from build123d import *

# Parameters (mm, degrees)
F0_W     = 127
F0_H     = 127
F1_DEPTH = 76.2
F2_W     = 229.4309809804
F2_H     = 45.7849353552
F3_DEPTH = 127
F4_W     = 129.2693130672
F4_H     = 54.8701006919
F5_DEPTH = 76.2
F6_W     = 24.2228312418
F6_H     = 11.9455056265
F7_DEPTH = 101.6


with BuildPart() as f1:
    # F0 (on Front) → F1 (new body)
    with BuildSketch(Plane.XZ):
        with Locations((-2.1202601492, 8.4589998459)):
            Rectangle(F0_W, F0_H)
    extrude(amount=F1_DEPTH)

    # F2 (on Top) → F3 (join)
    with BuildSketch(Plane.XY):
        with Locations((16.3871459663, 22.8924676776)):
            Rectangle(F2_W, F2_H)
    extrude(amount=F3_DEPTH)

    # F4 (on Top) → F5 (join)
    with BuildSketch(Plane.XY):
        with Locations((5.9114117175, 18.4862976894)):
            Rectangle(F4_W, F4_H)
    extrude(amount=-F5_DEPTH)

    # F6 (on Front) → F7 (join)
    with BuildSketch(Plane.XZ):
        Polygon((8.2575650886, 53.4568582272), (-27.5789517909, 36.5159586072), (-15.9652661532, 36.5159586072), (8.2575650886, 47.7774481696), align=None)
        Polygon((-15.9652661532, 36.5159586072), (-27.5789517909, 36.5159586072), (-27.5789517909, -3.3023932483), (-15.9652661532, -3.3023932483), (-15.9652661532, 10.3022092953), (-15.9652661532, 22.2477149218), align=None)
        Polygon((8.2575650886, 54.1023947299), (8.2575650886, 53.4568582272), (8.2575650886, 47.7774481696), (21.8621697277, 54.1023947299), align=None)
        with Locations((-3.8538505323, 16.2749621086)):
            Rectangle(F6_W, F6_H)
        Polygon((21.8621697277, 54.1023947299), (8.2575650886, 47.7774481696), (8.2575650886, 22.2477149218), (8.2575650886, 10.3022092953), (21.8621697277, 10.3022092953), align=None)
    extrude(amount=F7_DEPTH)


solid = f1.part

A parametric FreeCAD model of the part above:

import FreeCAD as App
import Part
import Sketcher
Q = App.Units.Quantity


def add_polygon(sketch, points):
    """Adds a closed chain of lines whose ends are joined by coincident constraints."""
    first, n = sketch.GeometryCount, len(points)
    for a, b in zip(points, points[1:] + points[:1]):
        sketch.addGeometry(Part.LineSegment(App.Vector(*a, 0), App.Vector(*b, 0)), False)
    for i in range(n):
        sketch.addConstraint(Sketcher.Constraint("Coincident", first + i, 2, first + (i + 1) % n, 1))

doc = App.newDocument("Part")
body = doc.addObject("PartDesign::Body", "Body")

# Sketch on XZ plane
sketch1 = body.newObject("Sketcher::SketchObject", "Sketch")
sketch1.AttachmentSupport = (doc.getObject("XZ_Plane"), [""])
sketch1.MapMode = "FlatFace"
add_polygon(sketch1, [(-66, 72), (-66, -55), (61, -55), (61, 72)])  # lines 0-3
sketch1.addConstraint(Sketcher.Constraint("Vertical", 0))
sketch1.addConstraint(Sketcher.Constraint("Horizontal", 1))
sketch1.addConstraint(Sketcher.Constraint("Vertical", 2))
sketch1.addConstraint(Sketcher.Constraint("Horizontal", 3))
sketch1.addConstraint(Sketcher.Constraint("Equal", 3, 0))
sketch1.addConstraint(Sketcher.Constraint("DistanceX", 1, 1, 1, 2, Q("5 in")))
sketch1.addConstraint(Sketcher.Constraint("DistanceY", 0, 2, -1, 1, 55.041))
sketch1.addConstraint(Sketcher.Constraint("DistanceX", 0, 2, -1, 1, 65.62026))
pad1 = body.newObject("PartDesign::Pad", "Pad")
pad1.Profile = sketch1
pad1.Length = Q("3 in")

# Sketch on XY plane
sketch2 = body.newObject("Sketcher::SketchObject", "Sketch001")
sketch2.AttachmentSupport = (doc.getObject("XY_Plane"), [""])
sketch2.MapMode = "FlatFace"
add_polygon(sketch2, [(-98, 46), (-98, 0), (131, 0), (131, 46)])  # lines 0-3
sketch2.addConstraint(Sketcher.Constraint("Vertical", 0))
sketch2.addConstraint(Sketcher.Constraint("Horizontal", 1))
sketch2.addConstraint(Sketcher.Constraint("Vertical", 2))
sketch2.addConstraint(Sketcher.Constraint("Horizontal", 3))
sketch2.addConstraint(Sketcher.Constraint("PointOnObject", 0, 2, -1))
sketch2.addConstraint(Sketcher.Constraint("DistanceX", 1, 1, 1, 2, 229.430981))
sketch2.addConstraint(Sketcher.Constraint("DistanceY", 0, 2, 0, 1, 45.784935))
sketch2.addConstraint(Sketcher.Constraint("DistanceX", 0, 2, -1, 1, 98.328345))
pad2 = body.newObject("PartDesign::Pad", "Pad001")
pad2.Profile = sketch2
pad2.Length = Q("5 in")

# Sketch on XY plane
sketch3 = body.newObject("Sketcher::SketchObject", "Sketch002")
sketch3.AttachmentSupport = (doc.getObject("XY_Plane"), [""])
sketch3.MapMode = "FlatFace"
add_polygon(sketch3, [(-59, 46), (-59, -9), (71, -9), (71, 46)])  # lines 0-3
sketch3.addConstraint(Sketcher.Constraint("Vertical", 0))
sketch3.addConstraint(Sketcher.Constraint("Horizontal", 1))
sketch3.addConstraint(Sketcher.Constraint("Vertical", 2))
sketch3.addConstraint(Sketcher.Constraint("Horizontal", 3))
sketch3.addConstraint(Sketcher.Constraint("DistanceY", 0, 2, 0, 1, 54.870101))
sketch3.addConstraint(Sketcher.Constraint("DistanceX", 1, 1, 1, 2, 129.269313))
sketch3.addConstraint(Sketcher.Constraint("DistanceX", -1, 1, 1, 2, 70.546068))
sketch3.addConstraint(Sketcher.Constraint("DistanceY", -1, 1, 2, 2, 45.921348))
pad3 = body.newObject("PartDesign::Pad", "Pad002")
pad3.Profile = sketch3
pad3.Length = Q("3 in")
pad3.Reversed = True

# Sketch on XZ plane
sketch4 = body.newObject("Sketcher::SketchObject", "Sketch003")
sketch4.AttachmentSupport = (doc.getObject("XZ_Plane"), [""])
sketch4.MapMode = "FlatFace"
add_polygon(sketch4, [(8.3, 53.5), (-27.6, 36.5), (-27.6, -3.3), (-16, -3.3), (-16, 10.3), (8.3, 10.3), (21.9, 10.3), (21.9, 54.1), (8.3, 54.1)])  # lines 0-8
add_polygon(sketch4, [(8.3, 22.2), (-16, 22.2), (-16, 36.5), (8.3, 47.8)])  # lines 9-12
sketch4.addConstraint(Sketcher.Constraint("Vertical", 1))
sketch4.addConstraint(Sketcher.Constraint("Horizontal", 2))
sketch4.addConstraint(Sketcher.Constraint("Vertical", 3))
sketch4.addConstraint(Sketcher.Constraint("Horizontal", 4))
sketch4.addConstraint(Sketcher.Constraint("Horizontal", 5))
sketch4.addConstraint(Sketcher.Constraint("Vertical", 6))
sketch4.addConstraint(Sketcher.Constraint("Horizontal", 7))
sketch4.addConstraint(Sketcher.Constraint("Vertical", 8))
sketch4.addConstraint(Sketcher.Constraint("Horizontal", 9))
sketch4.addConstraint(Sketcher.Constraint("Vertical", 10))
sketch4.addConstraint(Sketcher.Constraint("Vertical", 12))
sketch4.addConstraint(Sketcher.Constraint("Horizontal", 0, 2, 10, 2))
sketch4.addConstraint(Sketcher.Constraint("Vertical", 4, 2, 7, 2))
sketch4.addConstraint(Sketcher.Constraint("Vertical", 3, 2, 9, 2))
sketch4.addConstraint(Sketcher.Constraint("Vertical", 8, 2, 11, 2))
sketch4.addConstraint(Sketcher.Constraint("DistanceX", 4, 1, 4, 2, 24.222831))
sketch4.addConstraint(Sketcher.Constraint("DistanceY", 1, 2, 1, 1, 39.818352))
sketch4.addConstraint(Sketcher.Constraint("DistanceY", 0, 2, 8, 2, 16.9409))
sketch4.addConstraint(Sketcher.Constraint("Distance", 11, 26.712669))
sketch4.addConstraint(Sketcher.Constraint("DistanceX", 2, 1, 2, 2, 11.613686))
sketch4.addConstraint(Sketcher.Constraint("DistanceX", 5, 1, 5, 2, 13.604605))
sketch4.addConstraint(Sketcher.Constraint("DistanceY", 3, 1, 3, 2, 13.604603))
sketch4.addConstraint(Sketcher.Constraint("DistanceY", 6, 1, 6, 2, 43.800185))
sketch4.addConstraint(Sketcher.Constraint("DistanceY", 10, 1, 10, 2, 14.268244))
sketch4.addConstraint(Sketcher.Constraint("DistanceX", 0, 2, -1, 1, 27.578952))
sketch4.addConstraint(Sketcher.Constraint("DistanceY", -1, 1, 0, 2, 36.515959))
pad4 = body.newObject("PartDesign::Pad", "Pad003")
pad4.Profile = sketch4
pad4.Length = Q("4 in")

doc.recompute()
